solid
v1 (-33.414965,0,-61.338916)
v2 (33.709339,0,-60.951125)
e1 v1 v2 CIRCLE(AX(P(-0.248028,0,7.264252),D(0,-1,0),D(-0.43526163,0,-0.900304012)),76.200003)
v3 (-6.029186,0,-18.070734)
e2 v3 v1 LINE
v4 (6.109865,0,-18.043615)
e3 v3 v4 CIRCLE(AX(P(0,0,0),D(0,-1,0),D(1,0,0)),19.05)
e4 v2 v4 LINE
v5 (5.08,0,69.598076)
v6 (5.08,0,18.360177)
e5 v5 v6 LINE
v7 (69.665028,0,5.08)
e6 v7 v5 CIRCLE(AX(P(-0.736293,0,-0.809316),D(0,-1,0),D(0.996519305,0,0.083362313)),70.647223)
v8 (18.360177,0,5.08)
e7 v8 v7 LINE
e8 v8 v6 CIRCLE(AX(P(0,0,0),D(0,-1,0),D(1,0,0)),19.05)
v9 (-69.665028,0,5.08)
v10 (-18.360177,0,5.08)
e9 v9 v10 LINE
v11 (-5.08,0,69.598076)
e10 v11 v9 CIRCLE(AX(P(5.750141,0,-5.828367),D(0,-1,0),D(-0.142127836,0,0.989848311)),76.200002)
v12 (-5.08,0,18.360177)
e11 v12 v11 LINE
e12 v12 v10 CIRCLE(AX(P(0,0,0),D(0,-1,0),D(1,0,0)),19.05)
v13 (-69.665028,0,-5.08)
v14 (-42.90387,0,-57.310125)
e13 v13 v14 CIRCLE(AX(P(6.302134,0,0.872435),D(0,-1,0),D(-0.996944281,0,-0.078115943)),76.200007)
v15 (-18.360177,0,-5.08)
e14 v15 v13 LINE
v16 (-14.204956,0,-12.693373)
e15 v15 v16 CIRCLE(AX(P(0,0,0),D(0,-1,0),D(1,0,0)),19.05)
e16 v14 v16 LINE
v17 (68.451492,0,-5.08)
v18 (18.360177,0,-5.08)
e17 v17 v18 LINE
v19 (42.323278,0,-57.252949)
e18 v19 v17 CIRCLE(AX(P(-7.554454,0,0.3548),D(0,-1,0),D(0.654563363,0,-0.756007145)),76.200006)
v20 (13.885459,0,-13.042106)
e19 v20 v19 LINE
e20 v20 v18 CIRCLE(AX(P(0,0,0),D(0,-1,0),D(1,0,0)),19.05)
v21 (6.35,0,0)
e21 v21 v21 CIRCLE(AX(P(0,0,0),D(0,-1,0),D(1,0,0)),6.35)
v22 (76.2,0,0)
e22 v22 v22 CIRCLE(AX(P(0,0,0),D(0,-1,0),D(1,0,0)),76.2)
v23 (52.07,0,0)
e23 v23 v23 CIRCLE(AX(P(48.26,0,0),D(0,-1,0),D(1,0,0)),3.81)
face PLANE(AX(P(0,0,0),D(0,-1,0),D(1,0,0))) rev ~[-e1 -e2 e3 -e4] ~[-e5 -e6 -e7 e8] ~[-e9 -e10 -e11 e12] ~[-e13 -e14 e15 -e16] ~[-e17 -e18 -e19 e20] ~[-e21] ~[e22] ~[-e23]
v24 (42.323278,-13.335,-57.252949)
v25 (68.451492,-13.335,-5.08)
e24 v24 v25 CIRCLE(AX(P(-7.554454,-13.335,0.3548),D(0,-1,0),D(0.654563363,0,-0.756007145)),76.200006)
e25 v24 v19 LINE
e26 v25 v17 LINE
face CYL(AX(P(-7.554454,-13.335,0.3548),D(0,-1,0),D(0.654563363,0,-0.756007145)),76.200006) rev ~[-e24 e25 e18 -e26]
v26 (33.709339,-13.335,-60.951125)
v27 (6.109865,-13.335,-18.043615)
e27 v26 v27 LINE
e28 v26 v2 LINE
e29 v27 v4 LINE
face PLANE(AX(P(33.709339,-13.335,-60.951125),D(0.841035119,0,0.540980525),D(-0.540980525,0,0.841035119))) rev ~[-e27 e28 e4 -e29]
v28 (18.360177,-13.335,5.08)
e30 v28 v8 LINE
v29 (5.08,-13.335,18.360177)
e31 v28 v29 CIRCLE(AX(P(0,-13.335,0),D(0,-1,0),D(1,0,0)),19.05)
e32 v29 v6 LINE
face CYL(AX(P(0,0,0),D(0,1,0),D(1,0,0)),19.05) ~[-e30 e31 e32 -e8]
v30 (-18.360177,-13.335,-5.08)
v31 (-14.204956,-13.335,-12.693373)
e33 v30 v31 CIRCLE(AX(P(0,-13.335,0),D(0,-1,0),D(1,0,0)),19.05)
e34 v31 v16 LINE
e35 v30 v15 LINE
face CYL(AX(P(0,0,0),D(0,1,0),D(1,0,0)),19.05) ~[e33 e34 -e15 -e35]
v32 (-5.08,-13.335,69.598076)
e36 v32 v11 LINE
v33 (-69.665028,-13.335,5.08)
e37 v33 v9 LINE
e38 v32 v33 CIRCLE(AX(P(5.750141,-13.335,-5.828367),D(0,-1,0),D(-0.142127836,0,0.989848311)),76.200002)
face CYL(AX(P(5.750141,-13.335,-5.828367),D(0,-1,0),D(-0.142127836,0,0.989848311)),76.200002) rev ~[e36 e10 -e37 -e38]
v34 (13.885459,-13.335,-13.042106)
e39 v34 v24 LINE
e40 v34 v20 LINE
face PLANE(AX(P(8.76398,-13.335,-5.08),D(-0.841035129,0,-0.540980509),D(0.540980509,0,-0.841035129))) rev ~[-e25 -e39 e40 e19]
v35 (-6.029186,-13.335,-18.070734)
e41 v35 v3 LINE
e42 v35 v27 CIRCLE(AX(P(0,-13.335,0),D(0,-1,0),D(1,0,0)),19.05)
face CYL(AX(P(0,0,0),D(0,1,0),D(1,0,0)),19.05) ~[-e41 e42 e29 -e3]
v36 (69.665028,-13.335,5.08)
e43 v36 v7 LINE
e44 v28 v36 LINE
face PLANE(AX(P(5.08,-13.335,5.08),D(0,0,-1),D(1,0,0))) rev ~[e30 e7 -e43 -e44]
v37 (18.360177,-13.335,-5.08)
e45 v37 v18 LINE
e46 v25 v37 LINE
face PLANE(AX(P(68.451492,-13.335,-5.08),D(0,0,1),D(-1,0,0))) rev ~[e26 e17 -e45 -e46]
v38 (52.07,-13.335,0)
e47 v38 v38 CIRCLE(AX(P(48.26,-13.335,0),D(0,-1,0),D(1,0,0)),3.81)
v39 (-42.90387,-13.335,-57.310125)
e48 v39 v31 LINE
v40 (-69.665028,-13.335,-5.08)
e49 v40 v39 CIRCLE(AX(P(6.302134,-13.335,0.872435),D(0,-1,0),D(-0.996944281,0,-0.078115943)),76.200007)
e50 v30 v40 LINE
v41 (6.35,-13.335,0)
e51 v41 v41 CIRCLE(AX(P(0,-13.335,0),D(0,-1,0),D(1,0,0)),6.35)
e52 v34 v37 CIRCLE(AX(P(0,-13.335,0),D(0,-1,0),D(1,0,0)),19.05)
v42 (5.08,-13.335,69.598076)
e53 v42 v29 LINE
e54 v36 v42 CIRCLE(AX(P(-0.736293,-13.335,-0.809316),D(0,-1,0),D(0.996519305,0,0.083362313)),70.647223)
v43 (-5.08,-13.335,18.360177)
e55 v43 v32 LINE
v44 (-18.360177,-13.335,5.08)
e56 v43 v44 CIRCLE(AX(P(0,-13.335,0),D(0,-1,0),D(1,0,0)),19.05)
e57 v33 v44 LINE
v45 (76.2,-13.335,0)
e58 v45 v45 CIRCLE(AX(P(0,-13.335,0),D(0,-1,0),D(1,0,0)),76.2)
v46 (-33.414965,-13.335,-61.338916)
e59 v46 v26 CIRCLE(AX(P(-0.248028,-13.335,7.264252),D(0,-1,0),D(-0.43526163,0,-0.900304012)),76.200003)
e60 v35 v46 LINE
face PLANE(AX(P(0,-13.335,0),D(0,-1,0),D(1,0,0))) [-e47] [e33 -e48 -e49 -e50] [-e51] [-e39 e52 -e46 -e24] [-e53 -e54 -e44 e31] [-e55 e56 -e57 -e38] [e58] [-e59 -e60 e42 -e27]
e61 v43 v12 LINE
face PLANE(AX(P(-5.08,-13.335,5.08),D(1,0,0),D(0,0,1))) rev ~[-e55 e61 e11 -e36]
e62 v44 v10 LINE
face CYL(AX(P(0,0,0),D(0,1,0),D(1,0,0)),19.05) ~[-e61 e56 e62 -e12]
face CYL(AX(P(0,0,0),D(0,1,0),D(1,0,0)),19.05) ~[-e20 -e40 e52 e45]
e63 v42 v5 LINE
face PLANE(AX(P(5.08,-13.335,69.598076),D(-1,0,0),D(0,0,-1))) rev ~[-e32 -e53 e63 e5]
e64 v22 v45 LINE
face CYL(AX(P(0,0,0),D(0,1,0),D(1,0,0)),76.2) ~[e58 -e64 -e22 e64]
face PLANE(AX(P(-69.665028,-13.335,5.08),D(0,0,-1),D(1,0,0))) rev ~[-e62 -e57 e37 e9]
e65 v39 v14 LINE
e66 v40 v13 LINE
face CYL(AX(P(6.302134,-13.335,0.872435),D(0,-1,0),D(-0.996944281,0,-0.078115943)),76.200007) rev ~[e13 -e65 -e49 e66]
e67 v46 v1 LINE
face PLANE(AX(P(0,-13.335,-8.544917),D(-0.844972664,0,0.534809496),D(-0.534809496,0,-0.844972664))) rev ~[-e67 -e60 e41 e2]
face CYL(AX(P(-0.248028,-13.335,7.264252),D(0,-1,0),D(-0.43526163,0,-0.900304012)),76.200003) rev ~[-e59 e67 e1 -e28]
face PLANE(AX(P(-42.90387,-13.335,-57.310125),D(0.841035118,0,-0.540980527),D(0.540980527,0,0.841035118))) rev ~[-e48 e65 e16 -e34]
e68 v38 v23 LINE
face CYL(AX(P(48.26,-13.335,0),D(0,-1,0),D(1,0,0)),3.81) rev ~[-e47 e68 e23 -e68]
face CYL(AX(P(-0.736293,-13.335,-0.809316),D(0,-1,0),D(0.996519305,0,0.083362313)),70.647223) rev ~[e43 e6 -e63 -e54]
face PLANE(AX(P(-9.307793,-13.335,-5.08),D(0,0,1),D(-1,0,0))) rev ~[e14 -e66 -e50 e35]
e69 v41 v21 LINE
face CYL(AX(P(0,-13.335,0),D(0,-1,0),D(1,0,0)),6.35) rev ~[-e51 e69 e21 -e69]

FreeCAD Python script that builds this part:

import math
import FreeCAD as App
import Part
import Sketcher
Q = App.Units.Quantity

doc = App.newDocument("Part")
body = doc.addObject("PartDesign::Body", "Body")

sketch1 = body.newObject("Sketcher::SketchObject", "Sketch")
sketch1.AttachmentSupport = (doc.getObject("XZ_Plane"), [""])
sketch1.MapMode = "FlatFace"
sketch1.addGeometry(Part.Circle(App.Vector(0, 0, 0), App.Vector(0, 0, 1), 76), False)
sketch1.addConstraint([
    Sketcher.Constraint("Coincident", 0, 3, -1, 1),
    Sketcher.Constraint("Diameter", 0, Q("6 in")),
])
pad1 = body.newObject("PartDesign::Pad", "Pad")
pad1.Profile = sketch1
pad1.Length = Q("0.525 in")

sketch2 = body.newObject("Sketcher::SketchObject", "Sketch001")
sketch2.AttachmentSupport = (doc.getObject("XZ_Plane"), [""])
sketch2.MapMode = "FlatFace"
sketch2.AttachmentOffset = App.Placement(App.Vector(0, 0, 0.525 * 25.4), App.Rotation())
sketch2.addGeometry([
    Part.LineSegment(App.Vector(-5, 5, 0), App.Vector(-5, 70, 0)),
    Part.ArcOfCircle(Part.Circle(App.Vector(6, -6, 0), App.Vector(0, 0, 1), 76), math.radians(98), math.radians(172)),
    Part.LineSegment(App.Vector(-70, 5, 0), App.Vector(-5, 5, 0)),
    Part.LineSegment(App.Vector(5, 5, 0), App.Vector(70, 5, 0)),
    Part.ArcOfCircle(Part.Circle(App.Vector(-1, -1, 0), App.Vector(0, 0, 1), 71), math.radians(5), math.radians(85)),
    Part.LineSegment(App.Vector(5, 70, 0), App.Vector(5, 5, 0)),
    Part.LineSegment(App.Vector(9, -5, 0), App.Vector(42, -57, 0)),
    Part.ArcOfCircle(Part.Circle(App.Vector(-8, 0, 0), App.Vector(0, 0, 1), 76), math.radians(-49), math.radians(-4)),
    Part.LineSegment(App.Vector(68, -5, 0), App.Vector(9, -5, 0)),
    Part.LineSegment(App.Vector(0, -9, 0), App.Vector(-33, -61, 0)),
    Part.ArcOfCircle(Part.Circle(App.Vector(0, 7, 0), App.Vector(0, 0, 1), 76), math.radians(-116), math.radians(-64)),
    Part.LineSegment(App.Vector(34, -61, 0), App.Vector(0, -9, 0)),
    Part.LineSegment(App.Vector(-9, -5, 0), App.Vector(-70, -5, 0)),
    Part.ArcOfCircle(Part.Circle(App.Vector(6, 1, 0), App.Vector(0, 0, 1), 76), math.radians(-176), math.radians(-130)),
    Part.LineSegment(App.Vector(-43, -57, 0), App.Vector(-9, -5, 0)),
], False)
sketch2.addConstraint([
    Sketcher.Constraint("Coincident", 0, 2, 1, 1),
    Sketcher.Constraint("Coincident", 1, 2, 2, 1),
    Sketcher.Constraint("Coincident", 2, 2, 0, 1),
    Sketcher.Constraint("Coincident", 3, 2, 4, 1),
    Sketcher.Constraint("Coincident", 4, 2, 5, 1),
    Sketcher.Constraint("Coincident", 5, 2, 3, 1),
    Sketcher.Constraint("Coincident", 6, 2, 7, 1),
    Sketcher.Constraint("Coincident", 7, 2, 8, 1),
    Sketcher.Constraint("Coincident", 8, 2, 6, 1),
    Sketcher.Constraint("Coincident", 9, 2, 10, 1),
    Sketcher.Constraint("Coincident", 10, 2, 11, 1),
    Sketcher.Constraint("Coincident", 11, 2, 9, 1),
    Sketcher.Constraint("Coincident", 12, 2, 13, 1),
    Sketcher.Constraint("Coincident", 13, 2, 14, 1),
    Sketcher.Constraint("Coincident", 14, 2, 12, 1),
    Sketcher.Constraint("Vertical", 0),
    Sketcher.Constraint("Horizontal", 2),
    Sketcher.Constraint("Horizontal", 3),
    Sketcher.Constraint("Vertical", 5),
    Sketcher.Constraint("Horizontal", 8),
    Sketcher.Constraint("Horizontal", 12),
    Sketcher.Constraint("Equal", 1, 10),
    Sketcher.Constraint("Equal", 7, 13),
    Sketcher.Constraint("Symmetric", 3, 2, 12, 2, -1, 1),
    Sketcher.Constraint("Symmetric", 1, 2, 3, 2, -2),
    Sketcher.Constraint("Symmetric", 0, 2, 4, 2, -2),
    Sketcher.Constraint("PointOnObject", 11, 2, -2),
    Sketcher.Constraint("Parallel", 6, 11),
    Sketcher.Constraint("Horizontal", 8, 2, 12, 2),
    Sketcher.Constraint("Radius", 1, Q("3.0000001 in")),
    Sketcher.Constraint("DistanceX", 0, 2, -1, 1, Q("0.2 in")),
    Sketcher.Constraint("DistanceY", -1, 1, 1, 2, Q("0.2 in")),
    Sketcher.Constraint("Radius", 4, Q("70.647223 mm")),
    Sketcher.Constraint("Radius", 7, Q("76.200006 mm")),
    Sketcher.Constraint("DistanceX", 2, 1, 2, 2, Q("64.585028 mm")),
    Sketcher.Constraint("DistanceX", 8, 2, 8, 1, Q("59.687512 mm")),
    Sketcher.Constraint("DistanceY", -1, 1, 7, 3, Q("0.3548 mm")),
    Sketcher.Constraint("DistanceX", 1, 2, 10, 3, Q("69.417 mm")),
    Sketcher.Constraint("DistanceY", 9, 2, 4, 3, Q("60.5296 mm")),
    Sketcher.Constraint("DistanceY", 11, 2, 4, 3, Q("7.735601 mm")),
    Sketcher.Constraint("DistanceX", 14, 2, 4, 3, Q("8.5715 mm")),
    Sketcher.Constraint("Distance", 6, Q("62.034209 mm")),
    Sketcher.Constraint("DistanceX", 12, 2, 12, 1, Q("60.357235 mm")),
    Sketcher.Constraint("DistanceX", -1, 1, 6, 2, Q("42.323278 mm")),
    Sketcher.Constraint("DistanceX", -1, 1, 10, 2, Q("33.709339 mm")),
    Sketcher.Constraint("DistanceX", 13, 2, -1, 1, Q("42.90387 mm")),
    Sketcher.Constraint("DistanceY", 4, 3, 13, 3, Q("1.681751 mm")),
])
pocket1 = body.newObject("PartDesign::Pocket", "Pocket")
pocket1.Profile = sketch2
pocket1.Type = "ThroughAll"

sketch3 = body.newObject("Sketcher::SketchObject", "Sketch002")
sketch3.AttachmentSupport = (doc.getObject("XZ_Plane"), [""])
sketch3.MapMode = "FlatFace"
sketch3.AttachmentOffset = App.Placement(App.Vector(0, 0, 0.525 * 25.4), App.Rotation())
sketch3.addGeometry([
    Part.LineSegment(App.Vector(-5, 5, 0), App.Vector(-5, 70, 0)),
    Part.ArcOfCircle(Part.Circle(App.Vector(6, -6, 0), App.Vector(0, 0, 1), 76), math.radians(98), math.radians(172)),
    Part.LineSegment(App.Vector(-70, 5, 0), App.Vector(-5, 5, 0)),
    Part.LineSegment(App.Vector(5, 5, 0), App.Vector(70, 5, 0)),
    Part.ArcOfCircle(Part.Circle(App.Vector(-1, -1, 0), App.Vector(0, 0, 1), 71), math.radians(5), math.radians(85)),
    Part.LineSegment(App.Vector(5, 70, 0), App.Vector(5, 5, 0)),
    Part.LineSegment(App.Vector(9, -5, 0), App.Vector(42, -57, 0)),
    Part.ArcOfCircle(Part.Circle(App.Vector(-8, 0, 0), App.Vector(0, 0, 1), 76), math.radians(-49), math.radians(-4)),
    Part.LineSegment(App.Vector(68, -5, 0), App.Vector(9, -5, 0)),
    Part.LineSegment(App.Vector(0, -9, 0), App.Vector(-33, -61, 0)),
    Part.ArcOfCircle(Part.Circle(App.Vector(0, 7, 0), App.Vector(0, 0, 1), 76), math.radians(-116), math.radians(-64)),
    Part.LineSegment(App.Vector(34, -61, 0), App.Vector(0, -9, 0)),
    Part.LineSegment(App.Vector(-9, -5, 0), App.Vector(-70, -5, 0)),
    Part.ArcOfCircle(Part.Circle(App.Vector(6, 1, 0), App.Vector(0, 0, 1), 76), math.radians(-176), math.radians(-130)),
    Part.LineSegment(App.Vector(-43, -57, 0), App.Vector(-9, -5, 0)),
], False)
sketch3.addConstraint([
    Sketcher.Constraint("Coincident", 0, 2, 1, 1),
    Sketcher.Constraint("Coincident", 1, 2, 2, 1),
    Sketcher.Constraint("Coincident", 2, 2, 0, 1),
    Sketcher.Constraint("Coincident", 3, 2, 4, 1),
    Sketcher.Constraint("Coincident", 4, 2, 5, 1),
    Sketcher.Constraint("Coincident", 5, 2, 3, 1),
    Sketcher.Constraint("Coincident", 6, 2, 7, 1),
    Sketcher.Constraint("Coincident", 7, 2, 8, 1),
    Sketcher.Constraint("Coincident", 8, 2, 6, 1),
    Sketcher.Constraint("Coincident", 9, 2, 10, 1),
    Sketcher.Constraint("Coincident", 10, 2, 11, 1),
    Sketcher.Constraint("Coincident", 11, 2, 9, 1),
    Sketcher.Constraint("Coincident", 12, 2, 13, 1),
    Sketcher.Constraint("Coincident", 13, 2, 14, 1),
    Sketcher.Constraint("Coincident", 14, 2, 12, 1),
    Sketcher.Constraint("Vertical", 0),
    Sketcher.Constraint("Horizontal", 2),
    Sketcher.Constraint("Horizontal", 3),
    Sketcher.Constraint("Vertical", 5),
    Sketcher.Constraint("Horizontal", 8),
    Sketcher.Constraint("Horizontal", 12),
    Sketcher.Constraint("Equal", 1, 10),
    Sketcher.Constraint("Equal", 7, 13),
    Sketcher.Constraint("Symmetric", 3, 2, 12, 2, -1, 1),
    Sketcher.Constraint("Symmetric", 1, 2, 3, 2, -2),
    Sketcher.Constraint("Symmetric", 0, 2, 4, 2, -2),
    Sketcher.Constraint("PointOnObject", 11, 2, -2),
    Sketcher.Constraint("Parallel", 6, 11),
    Sketcher.Constraint("Horizontal", 8, 2, 12, 2),
    Sketcher.Constraint("Radius", 1, Q("3.0000001 in")),
    Sketcher.Constraint("DistanceX", 0, 2, -1, 1, Q("0.2 in")),
    Sketcher.Constraint("DistanceY", -1, 1, 1, 2, Q("0.2 in")),
    Sketcher.Constraint("Radius", 4, Q("70.647223 mm")),
    Sketcher.Constraint("Radius", 7, Q("76.200006 mm")),
    Sketcher.Constraint("DistanceX", 2, 1, 2, 2, Q("64.585028 mm")),
    Sketcher.Constraint("DistanceX", 8, 2, 8, 1, Q("59.687512 mm")),
    Sketcher.Constraint("DistanceY", -1, 1, 7, 3, Q("0.3548 mm")),
    Sketcher.Constraint("DistanceX", 1, 2, 10, 3, Q("69.417 mm")),
    Sketcher.Constraint("DistanceY", 9, 2, 4, 3, Q("60.5296 mm")),
    Sketcher.Constraint("DistanceY", 11, 2, 4, 3, Q("7.735601 mm")),
    Sketcher.Constraint("DistanceX", 14, 2, 4, 3, Q("8.5715 mm")),
    Sketcher.Constraint("Distance", 6, Q("62.034209 mm")),
    Sketcher.Constraint("DistanceX", 12, 2, 12, 1, Q("60.357235 mm")),
    Sketcher.Constraint("DistanceX", -1, 1, 6, 2, Q("42.323278 mm")),
    Sketcher.Constraint("DistanceX", -1, 1, 10, 2, Q("33.709339 mm")),
    Sketcher.Constraint("DistanceX", 13, 2, -1, 1, Q("42.90387 mm")),
    Sketcher.Constraint("DistanceY", 4, 3, 13, 3, Q("1.681751 mm")),
])
pocket2 = body.newObject("PartDesign::Pocket", "Pocket001")
pocket2.Profile = sketch3
pocket2.Length = Q("1 in")

sketch4 = body.newObject("Sketcher::SketchObject", "Sketch003")
sketch4.AttachmentSupport = (doc.getObject("XZ_Plane"), [""])
sketch4.MapMode = "FlatFace"
sketch4.addGeometry([
    Part.Circle(App.Vector(0, 0, 0), App.Vector(0, 0, 1), 19),
    Part.Circle(App.Vector(0, 0, 0), App.Vector(0, 0, 1), 6),
], False)
sketch4.addConstraint([
    Sketcher.Constraint("Coincident", 0, 3, -1, 1),
    Sketcher.Constraint("Coincident", 1, 3, -1, 1),
    Sketcher.Constraint("Diameter", 0, Q("1.5 in")),
    Sketcher.Constraint("Diameter", 1, Q("0.5 in")),
])
pad2 = body.newObject("PartDesign::Pad", "Pad001")
pad2.Profile = sketch4
pad2.Length = Q("0.525 in")

sketch5 = body.newObject("Sketcher::SketchObject", "Sketch004")
sketch5.AttachmentSupport = (doc.getObject("XZ_Plane"), [""])
sketch5.MapMode = "FlatFace"
sketch5.AttachmentOffset = App.Placement(App.Vector(0, 0, 0.525 * 25.4), App.Rotation())
sketch5.addGeometry(Part.Circle(App.Vector(0, 0, 0), App.Vector(0, 0, 1), 6), False)
sketch5.addConstraint([
    Sketcher.Constraint("Coincident", 0, 3, -1, 1),
    Sketcher.Constraint("Diameter", 0, Q("0.5 in")),
])
pocket3 = body.newObject("PartDesign::Pocket", "Pocket002")
pocket3.Profile = sketch5
pocket3.Length = Q("1 in")

sketch6 = body.newObject("Sketcher::SketchObject", "Sketch005")
sketch6.AttachmentSupport = (doc.getObject("XZ_Plane"), [""])
sketch6.MapMode = "FlatFace"
sketch6.AttachmentOffset = App.Placement(App.Vector(0, 0, 0.525 * 25.4), App.Rotation())
sketch6.addGeometry(Part.Circle(App.Vector(48.3, 0, 0), App.Vector(0, 0, 1), 3.8), False)
sketch6.addConstraint([
    Sketcher.Constraint("PointOnObject", 0, 3, -1),
    Sketcher.Constraint("Diameter", 0, Q("0.3 in")),
    Sketcher.Constraint("DistanceX", -1, 1, 0, 3, Q("1.9 in")),
])
pocket4 = body.newObject("PartDesign::Pocket", "Pocket003")
pocket4.Profile = sketch6
pocket4.Length = Q("1 in")

doc.recompute()
